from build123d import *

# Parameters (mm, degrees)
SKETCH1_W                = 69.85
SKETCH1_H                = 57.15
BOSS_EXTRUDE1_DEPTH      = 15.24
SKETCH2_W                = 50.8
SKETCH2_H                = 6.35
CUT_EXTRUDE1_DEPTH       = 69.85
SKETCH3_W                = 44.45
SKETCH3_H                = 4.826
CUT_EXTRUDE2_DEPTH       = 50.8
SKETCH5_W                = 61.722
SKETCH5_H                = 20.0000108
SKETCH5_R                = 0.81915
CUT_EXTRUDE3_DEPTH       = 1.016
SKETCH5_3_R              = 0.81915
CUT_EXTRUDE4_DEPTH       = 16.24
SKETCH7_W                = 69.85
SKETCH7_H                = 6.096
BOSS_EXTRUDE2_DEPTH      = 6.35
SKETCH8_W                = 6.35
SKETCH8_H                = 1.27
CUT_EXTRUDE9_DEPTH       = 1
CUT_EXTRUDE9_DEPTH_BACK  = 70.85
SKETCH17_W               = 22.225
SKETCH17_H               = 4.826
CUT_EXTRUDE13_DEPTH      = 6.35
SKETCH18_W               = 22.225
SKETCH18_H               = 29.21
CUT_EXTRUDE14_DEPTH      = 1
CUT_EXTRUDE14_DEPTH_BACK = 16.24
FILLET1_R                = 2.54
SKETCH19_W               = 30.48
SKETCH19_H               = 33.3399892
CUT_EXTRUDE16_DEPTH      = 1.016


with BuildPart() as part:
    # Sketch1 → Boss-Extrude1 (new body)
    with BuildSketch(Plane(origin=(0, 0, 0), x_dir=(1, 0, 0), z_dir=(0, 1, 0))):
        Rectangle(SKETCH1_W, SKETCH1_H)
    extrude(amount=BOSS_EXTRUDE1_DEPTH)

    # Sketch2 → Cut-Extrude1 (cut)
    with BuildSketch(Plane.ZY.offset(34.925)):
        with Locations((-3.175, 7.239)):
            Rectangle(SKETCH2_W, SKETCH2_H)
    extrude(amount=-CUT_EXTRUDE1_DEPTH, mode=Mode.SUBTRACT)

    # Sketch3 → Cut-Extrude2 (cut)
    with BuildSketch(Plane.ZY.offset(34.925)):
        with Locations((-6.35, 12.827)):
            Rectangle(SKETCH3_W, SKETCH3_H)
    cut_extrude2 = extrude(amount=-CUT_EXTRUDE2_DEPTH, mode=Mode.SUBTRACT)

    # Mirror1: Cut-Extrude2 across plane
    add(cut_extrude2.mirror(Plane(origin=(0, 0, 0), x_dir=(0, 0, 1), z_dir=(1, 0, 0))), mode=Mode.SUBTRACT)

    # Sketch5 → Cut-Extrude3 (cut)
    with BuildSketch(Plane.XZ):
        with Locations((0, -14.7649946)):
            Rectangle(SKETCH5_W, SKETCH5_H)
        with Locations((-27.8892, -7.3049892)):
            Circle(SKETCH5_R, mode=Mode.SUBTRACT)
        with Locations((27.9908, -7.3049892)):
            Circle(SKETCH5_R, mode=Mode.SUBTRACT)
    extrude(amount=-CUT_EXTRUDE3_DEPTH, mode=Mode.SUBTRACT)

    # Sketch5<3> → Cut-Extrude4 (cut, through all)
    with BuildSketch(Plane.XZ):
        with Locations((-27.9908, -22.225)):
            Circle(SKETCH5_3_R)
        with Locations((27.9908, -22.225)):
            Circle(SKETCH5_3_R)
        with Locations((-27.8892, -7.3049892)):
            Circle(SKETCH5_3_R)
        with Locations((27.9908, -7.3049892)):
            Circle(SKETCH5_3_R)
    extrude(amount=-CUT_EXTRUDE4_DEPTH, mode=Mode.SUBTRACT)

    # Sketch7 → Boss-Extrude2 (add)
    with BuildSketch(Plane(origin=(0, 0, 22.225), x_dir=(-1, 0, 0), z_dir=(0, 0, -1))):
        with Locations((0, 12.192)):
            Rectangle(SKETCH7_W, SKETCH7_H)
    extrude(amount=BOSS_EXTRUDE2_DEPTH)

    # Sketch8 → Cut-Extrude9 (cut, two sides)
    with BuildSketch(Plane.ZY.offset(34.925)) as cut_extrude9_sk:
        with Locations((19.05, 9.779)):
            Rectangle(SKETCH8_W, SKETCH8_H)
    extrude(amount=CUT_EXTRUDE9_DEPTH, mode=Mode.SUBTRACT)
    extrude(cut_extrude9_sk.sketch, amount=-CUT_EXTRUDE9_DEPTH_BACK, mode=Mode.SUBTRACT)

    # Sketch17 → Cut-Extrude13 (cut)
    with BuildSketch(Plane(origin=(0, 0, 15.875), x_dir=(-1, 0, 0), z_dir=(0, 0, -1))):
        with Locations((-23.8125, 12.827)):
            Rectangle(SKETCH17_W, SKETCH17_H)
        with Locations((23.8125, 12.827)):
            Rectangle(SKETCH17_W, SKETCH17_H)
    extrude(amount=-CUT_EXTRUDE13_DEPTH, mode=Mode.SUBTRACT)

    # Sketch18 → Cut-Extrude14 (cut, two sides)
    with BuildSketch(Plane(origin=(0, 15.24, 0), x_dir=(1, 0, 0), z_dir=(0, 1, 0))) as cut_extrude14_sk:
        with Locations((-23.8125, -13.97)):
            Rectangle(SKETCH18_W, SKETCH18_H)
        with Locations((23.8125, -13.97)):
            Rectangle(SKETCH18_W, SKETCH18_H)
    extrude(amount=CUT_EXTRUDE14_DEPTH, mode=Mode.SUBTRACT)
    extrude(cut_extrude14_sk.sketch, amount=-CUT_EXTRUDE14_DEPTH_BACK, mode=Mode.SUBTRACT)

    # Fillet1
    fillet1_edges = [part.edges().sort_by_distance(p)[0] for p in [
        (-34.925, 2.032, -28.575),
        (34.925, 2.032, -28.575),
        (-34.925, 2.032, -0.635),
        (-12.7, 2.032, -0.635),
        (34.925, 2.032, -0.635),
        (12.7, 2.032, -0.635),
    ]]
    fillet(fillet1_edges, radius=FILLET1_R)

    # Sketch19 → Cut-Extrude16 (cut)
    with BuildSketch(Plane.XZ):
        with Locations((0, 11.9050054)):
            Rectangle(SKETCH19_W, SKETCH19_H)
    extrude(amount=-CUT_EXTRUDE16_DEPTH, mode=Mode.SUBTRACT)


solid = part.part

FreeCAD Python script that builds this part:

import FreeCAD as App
import Part
import Sketcher
from FreeCAD import Vector
Q = App.Units.Quantity


def edges_at(feature, points):
    """Names of the edges that pass closest to the given points."""
    edges = feature.Shape.Edges
    near = lambda p: min(range(len(edges)), key=lambda i: edges[i].distToShape(Part.Vertex(*p))[0])
    return sorted({f"Edge{near(p) + 1}" for p in points})

doc = App.newDocument("Part")
body = doc.addObject("PartDesign::Body", "Body")

# Sketch on XZ plane
sketch1 = doc.addObject("Sketcher::SketchObject", "Sketch")
body.addObject(sketch1)
sketch1.AttachmentSupport = (doc.XZ_Plane, [""])
sketch1.MapMode = "FlatFace"
sketch1.addGeometry(Part.LineSegment(Vector(-35, -29, 0), Vector(-35, 29, 0)), False)
sketch1.addGeometry(Part.LineSegment(Vector(-35, 29, 0), Vector(35, 29, 0)), False)
sketch1.addGeometry(Part.LineSegment(Vector(35, 29, 0), Vector(35, -29, 0)), False)
sketch1.addGeometry(Part.LineSegment(Vector(35, -29, 0), Vector(-35, -29, 0)), False)
sketch1.addConstraint(Sketcher.Constraint("Coincident", 0, 2, 1, 1))
sketch1.addConstraint(Sketcher.Constraint("Coincident", 1, 2, 2, 1))
sketch1.addConstraint(Sketcher.Constraint("Coincident", 2, 2, 3, 1))
sketch1.addConstraint(Sketcher.Constraint("Coincident", 3, 2, 0, 1))
sketch1.addConstraint(Sketcher.Constraint("Vertical", 0))
sketch1.addConstraint(Sketcher.Constraint("Horizontal", 1))
sketch1.addConstraint(Sketcher.Constraint("Vertical", 2))
sketch1.addConstraint(Sketcher.Constraint("Horizontal", 3))
sketch1.addConstraint(Sketcher.Constraint("Symmetric", 0, 2, 2, 2, -1, 1))
sketch1.addConstraint(Sketcher.Constraint("DistanceX", 1, 1, 1, 2, Q("2.75 in")))
sketch1.addConstraint(Sketcher.Constraint("DistanceY", 0, 1, 0, 2, Q("2.25 in")))
pad1 = doc.addObject("PartDesign::Pad", "Pad")
body.addObject(pad1)
pad1.Profile = sketch1
pad1.Length = Q("0.6 in")
pad1.Reversed = True

# Sketch on YZ plane
sketch2 = doc.addObject("Sketcher::SketchObject", "Sketch001")
body.addObject(sketch2)
sketch2.AttachmentSupport = (doc.YZ_Plane, [""])
sketch2.MapMode = "FlatFace"
sketch2.AttachmentOffset = App.Placement(Vector(0, 0, -1.375 * 25.4), App.Rotation())
sketch2.addGeometry(Part.LineSegment(Vector(10, -29, 0), Vector(4, -29, 0)), False)
sketch2.addGeometry(Part.LineSegment(Vector(4, -29, 0), Vector(4, 22, 0)), False)
sketch2.addGeometry(Part.LineSegment(Vector(4, 22, 0), Vector(10, 22, 0)), False)
sketch2.addGeometry(Part.LineSegment(Vector(10, 22, 0), Vector(10, -29, 0)), False)
sketch2.addConstraint(Sketcher.Constraint("Coincident", 0, 2, 1, 1))
sketch2.addConstraint(Sketcher.Constraint("Coincident", 1, 2, 2, 1))
sketch2.addConstraint(Sketcher.Constraint("Coincident", 2, 2, 3, 1))
sketch2.addConstraint(Sketcher.Constraint("Coincident", 3, 2, 0, 1))
sketch2.addConstraint(Sketcher.Constraint("Horizontal", 0))
sketch2.addConstraint(Sketcher.Constraint("Vertical", 1))
sketch2.addConstraint(Sketcher.Constraint("Horizontal", 2))
sketch2.addConstraint(Sketcher.Constraint("Vertical", 3))
sketch2.addConstraint(Sketcher.Constraint("DistanceY", 1, 1, 1, 2, Q("2 in")))
sketch2.addConstraint(Sketcher.Constraint("DistanceX", 0, 2, 0, 1, Q("0.25 in")))
sketch2.addConstraint(Sketcher.Constraint("DistanceX", -1, 1, 0, 2, Q("0.16 in")))
sketch2.addConstraint(Sketcher.Constraint("DistanceY", 0, 2, -1, 1, Q("1.125 in")))
pocket1 = doc.addObject("PartDesign::Pocket", "Pocket")
body.addObject(pocket1)
pocket1.Profile = sketch2
pocket1.Length = Q("2.75 in")
pocket1.Reversed = True

# Sketch on YZ plane
sketch3 = doc.addObject("Sketcher::SketchObject", "Sketch002")
body.addObject(sketch3)
sketch3.AttachmentSupport = (doc.YZ_Plane, [""])
sketch3.MapMode = "FlatFace"
sketch3.AttachmentOffset = App.Placement(Vector(0, 0, -1.375 * 25.4), App.Rotation())
sketch3.addGeometry(Part.LineSegment(Vector(15.2, -28.6, 0), Vector(10.4, -28.6, 0)), False)
sketch3.addGeometry(Part.LineSegment(Vector(10.4, -28.6, 0), Vector(10.4, 15.9, 0)), False)
sketch3.addGeometry(Part.LineSegment(Vector(10.4, 15.9, 0), Vector(15.2, 15.9, 0)), False)
sketch3.addGeometry(Part.LineSegment(Vector(15.2, 15.9, 0), Vector(15.2, -28.6, 0)), False)
sketch3.addConstraint(Sketcher.Constraint("Coincident", 0, 2, 1, 1))
sketch3.addConstraint(Sketcher.Constraint("Coincident", 1, 2, 2, 1))
sketch3.addConstraint(Sketcher.Constraint("Coincident", 2, 2, 3, 1))
sketch3.addConstraint(Sketcher.Constraint("Coincident", 3, 2, 0, 1))
sketch3.addConstraint(Sketcher.Constraint("Horizontal", 0))
sketch3.addConstraint(Sketcher.Constraint("Vertical", 1))
sketch3.addConstraint(Sketcher.Constraint("Horizontal", 2))
sketch3.addConstraint(Sketcher.Constraint("Vertical", 3))
sketch3.addConstraint(Sketcher.Constraint("DistanceX", 0, 2, 0, 1, Q("0.19 in")))
sketch3.addConstraint(Sketcher.Constraint("DistanceY", 1, 1, 1, 2, Q("1.75 in")))
sketch3.addConstraint(Sketcher.Constraint("DistanceX", -1, 1, 2, 2, Q("0.6 in")))
sketch3.addConstraint(Sketcher.Constraint("DistanceY", 0, 2, -1, 1, Q("1.125 in")))
pocket2 = doc.addObject("PartDesign::Pocket", "Pocket001")
body.addObject(pocket2)
pocket2.Profile = sketch3
pocket2.Length = Q("2 in")
pocket2.Reversed = True
doc.recompute()

mirrored = doc.addObject("PartDesign::Mirrored", "Mirrored")
body.addObject(mirrored)
mirrored.Originals = [pocket2]
mirrored.MirrorPlane = (doc.YZ_Plane, [""])
body.Tip = mirrored

# Sketch on XZ plane
sketch4 = doc.addObject("Sketcher::SketchObject", "Sketch003")
body.addObject(sketch4)
sketch4.AttachmentSupport = (doc.XZ_Plane, [""])
sketch4.MapMode = "FlatFace"
sketch4.addGeometry(Part.LineSegment(Vector(-30.9, -4.8, 0), Vector(-30.9, -24.8, 0)), False)
sketch4.addGeometry(Part.LineSegment(Vector(-30.9, -24.8, 0), Vector(30.9, -24.8, 0)), False)
sketch4.addGeometry(Part.LineSegment(Vector(30.9, -24.8, 0), Vector(30.9, -4.8, 0)), False)
sketch4.addGeometry(Part.LineSegment(Vector(30.9, -4.8, 0), Vector(-30.9, -4.8, 0)), False)
sketch4.addGeometry(Part.Circle(Vector(-27.9, -7.3, 0), Vector(0, 0, 1), 0.8), False)
sketch4.addGeometry(Part.Circle(Vector(28, -7.3, 0), Vector(0, 0, 1), 0.8), False)
sketch4.addConstraint(Sketcher.Constraint("Coincident", 0, 2, 1, 1))
sketch4.addConstraint(Sketcher.Constraint("Coincident", 1, 2, 2, 1))
sketch4.addConstraint(Sketcher.Constraint("Coincident", 2, 2, 3, 1))
sketch4.addConstraint(Sketcher.Constraint("Coincident", 3, 2, 0, 1))
sketch4.addConstraint(Sketcher.Constraint("Vertical", 0))
sketch4.addConstraint(Sketcher.Constraint("Horizontal", 1))
sketch4.addConstraint(Sketcher.Constraint("Vertical", 2))
sketch4.addConstraint(Sketcher.Constraint("Horizontal", 3))
sketch4.addConstraint(Sketcher.Constraint("Equal", 4, 5))
sketch4.addConstraint(Sketcher.Constraint("Horizontal", 4, 3, 5, 3))
sketch4.addConstraint(Sketcher.Constraint("Diameter", 4, Q("0.0645 in")))
sketch4.addConstraint(Sketcher.Constraint("DistanceX", 1, 1, 1, 2, Q("2.43 in")))
sketch4.addConstraint(Sketcher.Constraint("DistanceX", 4, 3, 5, 3, Q("2.2 in")))
sketch4.addConstraint(Sketcher.Constraint("DistanceY", 5, 3, 2, 2, Q("0.1 in")))
sketch4.addConstraint(Sketcher.Constraint("DistanceX", 4, 3, -1, 1, Q("1.098 in")))
sketch4.addConstraint(Sketcher.Constraint("DistanceX", 0, 2, -1, 1, Q("1.215 in")))
sketch4.addConstraint(Sketcher.Constraint("DistanceY", 0, 2, -1, 1, Q("0.975 in")))
sketch4.addConstraint(Sketcher.Constraint("DistanceY", 0, 2, 0, 1, 20.000011))
pocket3 = doc.addObject("PartDesign::Pocket", "Pocket002")
body.addObject(pocket3)
pocket3.Profile = sketch4
pocket3.Length = Q("0.04 in")

# Sketch on XZ plane
sketch5 = doc.addObject("Sketcher::SketchObject", "Sketch004")
body.addObject(sketch5)
sketch5.AttachmentSupport = (doc.XZ_Plane, [""])
sketch5.MapMode = "FlatFace"
sketch5.addGeometry(Part.Circle(Vector(-28, -22.2, 0), Vector(0, 0, 1), 0.8), False)
sketch5.addGeometry(Part.Circle(Vector(28, -22.2, 0), Vector(0, 0, 1), 0.8), False)
sketch5.addGeometry(Part.Circle(Vector(-27.9, -7.3, 0), Vector(0, 0, 1), 0.8), False)
sketch5.addGeometry(Part.Circle(Vector(28, -7.3, 0), Vector(0, 0, 1), 0.8), False)
sketch5.addConstraint(Sketcher.Constraint("Equal", 0, 1))
sketch5.addConstraint(Sketcher.Constraint("Equal", 1, 2))
sketch5.addConstraint(Sketcher.Constraint("Equal", 2, 3))
sketch5.addConstraint(Sketcher.Constraint("Symmetric", 0, 3, 1, 3, -2))
sketch5.addConstraint(Sketcher.Constraint("Horizontal", 2, 3, 3, 3))
sketch5.addConstraint(Sketcher.Constraint("Vertical", 1, 3, 3, 3))
sketch5.addConstraint(Sketcher.Constraint("Diameter", 0, Q("0.0645 in")))
sketch5.addConstraint(Sketcher.Constraint("DistanceX", 2, 3, 1, 3, Q("2.2 in")))
sketch5.addConstraint(Sketcher.Constraint("DistanceX", 0, 3, -1, 1, Q("1.102 in")))
sketch5.addConstraint(Sketcher.Constraint("DistanceY", 0, 3, -1, 1, Q("0.875 in")))
sketch5.addConstraint(Sketcher.Constraint("DistanceY", 2, 3, -1, 1, 7.304989))
pocket4 = doc.addObject("PartDesign::Pocket", "Pocket003")
body.addObject(pocket4)
pocket4.Profile = sketch5
pocket4.Type = "ThroughAll"

# Sketch on XY plane
sketch6 = doc.addObject("Sketcher::SketchObject", "Sketch005")
body.addObject(sketch6)
sketch6.AttachmentSupport = (doc.XY_Plane, [""])
sketch6.MapMode = "FlatFace"
sketch6.AttachmentOffset = App.Placement(Vector(0, 0, 0.875 * 25.4), App.Rotation())
sketch6.addGeometry(Part.LineSegment(Vector(35, 15, 0), Vector(35, 9, 0)), False)
sketch6.addGeometry(Part.LineSegment(Vector(35, 9, 0), Vector(-35, 9, 0)), False)
sketch6.addGeometry(Part.LineSegment(Vector(-35, 9, 0), Vector(-35, 15, 0)), False)
sketch6.addGeometry(Part.LineSegment(Vector(-35, 15, 0), Vector(35, 15, 0)), False)
sketch6.addConstraint(Sketcher.Constraint("Coincident", 0, 2, 1, 1))
sketch6.addConstraint(Sketcher.Constraint("Coincident", 1, 2, 2, 1))
sketch6.addConstraint(Sketcher.Constraint("Coincident", 2, 2, 3, 1))
sketch6.addConstraint(Sketcher.Constraint("Coincident", 3, 2, 0, 1))
sketch6.addConstraint(Sketcher.Constraint("Vertical", 0))
sketch6.addConstraint(Sketcher.Constraint("Horizontal", 1))
sketch6.addConstraint(Sketcher.Constraint("Vertical", 2))
sketch6.addConstraint(Sketcher.Constraint("Horizontal", 3))
sketch6.addConstraint(Sketcher.Constraint("DistanceX", 1, 2, 1, 1, Q("2.75 in")))
sketch6.addConstraint(Sketcher.Constraint("DistanceY", 0, 2, 0, 1, Q("0.24 in")))
sketch6.addConstraint(Sketcher.Constraint("DistanceY", -1, 1, 2, 2, Q("0.6 in")))
sketch6.addConstraint(Sketcher.Constraint("DistanceX", -1, 1, 0, 2, Q("1.375 in")))
pad2 = doc.addObject("PartDesign::Pad", "Pad001")
body.addObject(pad2)
pad2.Profile = sketch6
pad2.Length = Q("0.25 in")
pad2.Reversed = True

# Sketch on YZ plane
sketch7 = doc.addObject("Sketcher::SketchObject", "Sketch006")
body.addObject(sketch7)
sketch7.AttachmentSupport = (doc.YZ_Plane, [""])
sketch7.MapMode = "FlatFace"
sketch7.AttachmentOffset = App.Placement(Vector(0, 0, -1.375 * 25.4), App.Rotation())
sketch7.addGeometry(Part.LineSegment(Vector(10.4, 15.9, 0), Vector(9.1, 15.9, 0)), False)
sketch7.addGeometry(Part.LineSegment(Vector(9.1, 15.9, 0), Vector(9.1, 22.2, 0)), False)
sketch7.addGeometry(Part.LineSegment(Vector(9.1, 22.2, 0), Vector(10.4, 22.2, 0)), False)
sketch7.addGeometry(Part.LineSegment(Vector(10.4, 22.2, 0), Vector(10.4, 15.9, 0)), False)
sketch7.addConstraint(Sketcher.Constraint("Coincident", 0, 2, 1, 1))
sketch7.addConstraint(Sketcher.Constraint("Coincident", 1, 2, 2, 1))
sketch7.addConstraint(Sketcher.Constraint("Coincident", 2, 2, 3, 1))
sketch7.addConstraint(Sketcher.Constraint("Coincident", 3, 2, 0, 1))
sketch7.addConstraint(Sketcher.Constraint("Horizontal", 0))
sketch7.addConstraint(Sketcher.Constraint("Vertical", 1))
sketch7.addConstraint(Sketcher.Constraint("Horizontal", 2))
sketch7.addConstraint(Sketcher.Constraint("Vertical", 3))
sketch7.addConstraint(Sketcher.Constraint("DistanceX", 0, 2, 0, 1, Q("0.05 in")))
sketch7.addConstraint(Sketcher.Constraint("DistanceY", 1, 1, 1, 2, Q("0.25 in")))
sketch7.addConstraint(Sketcher.Constraint("DistanceX", -1, 1, 0, 2, Q("0.36 in")))
sketch7.addConstraint(Sketcher.Constraint("DistanceY", -1, 1, 0, 2, Q("0.625 in")))
pocket5 = doc.addObject("PartDesign::Pocket", "Pocket004")
body.addObject(pocket5)
pocket5.Profile = sketch7
pocket5.Type = "ThroughAll"
pocket5.Midplane = True

# Sketch on XY plane
sketch8 = doc.addObject("Sketcher::SketchObject", "Sketch007")
body.addObject(sketch8)
sketch8.AttachmentSupport = (doc.XY_Plane, [""])
sketch8.MapMode = "FlatFace"
sketch8.AttachmentOffset = App.Placement(Vector(0, 0, 0.625 * 25.4), App.Rotation())
sketch8.addGeometry(Part.LineSegment(Vector(34.9, 15.2, 0), Vector(34.9, 10.4, 0)), False)
sketch8.addGeometry(Part.LineSegment(Vector(34.9, 10.4, 0), Vector(12.7, 10.4, 0)), False)
sketch8.addGeometry(Part.LineSegment(Vector(12.7, 10.4, 0), Vector(12.7, 15.2, 0)), False)
sketch8.addGeometry(Part.LineSegment(Vector(12.7, 15.2, 0), Vector(34.9, 15.2, 0)), False)
sketch8.addGeometry(Part.LineSegment(Vector(-12.7, 15.2, 0), Vector(-12.7, 10.4, 0)), False)
sketch8.addGeometry(Part.LineSegment(Vector(-12.7, 10.4, 0), Vector(-34.9, 10.4, 0)), False)
sketch8.addGeometry(Part.LineSegment(Vector(-34.9, 10.4, 0), Vector(-34.9, 15.2, 0)), False)
sketch8.addGeometry(Part.LineSegment(Vector(-34.9, 15.2, 0), Vector(-12.7, 15.2, 0)), False)
sketch8.addConstraint(Sketcher.Constraint("Coincident", 0, 2, 1, 1))
sketch8.addConstraint(Sketcher.Constraint("Coincident", 1, 2, 2, 1))
sketch8.addConstraint(Sketcher.Constraint("Coincident", 2, 2, 3, 1))
sketch8.addConstraint(Sketcher.Constraint("Coincident", 3, 2, 0, 1))
sketch8.addConstraint(Sketcher.Constraint("Coincident", 4, 2, 5, 1))
sketch8.addConstraint(Sketcher.Constraint("Coincident", 5, 2, 6, 1))
sketch8.addConstraint(Sketcher.Constraint("Coincident", 6, 2, 7, 1))
sketch8.addConstraint(Sketcher.Constraint("Coincident", 7, 2, 4, 1))
sketch8.addConstraint(Sketcher.Constraint("Vertical", 0))
sketch8.addConstraint(Sketcher.Constraint("Horizontal", 1))
sketch8.addConstraint(Sketcher.Constraint("Vertical", 2))
sketch8.addConstraint(Sketcher.Constraint("Horizontal", 3))
sketch8.addConstraint(Sketcher.Constraint("Vertical", 4))
sketch8.addConstraint(Sketcher.Constraint("Horizontal", 5))
sketch8.addConstraint(Sketcher.Constraint("Vertical", 6))
sketch8.addConstraint(Sketcher.Constraint("Horizontal", 7))
sketch8.addConstraint(Sketcher.Constraint("Symmetric", 1, 2, 4, 2, -2))
sketch8.addConstraint(Sketcher.Constraint("Symmetric", 3, 2, 6, 2, -2))
sketch8.addConstraint(Sketcher.Constraint("DistanceX", 4, 2, 1, 2, Q("1 in")))
sketch8.addConstraint(Sketcher.Constraint("DistanceY", 0, 2, 0, 1, Q("0.19 in")))
sketch8.addConstraint(Sketcher.Constraint("DistanceY", -1, 1, 2, 2, Q("0.6 in")))
sketch8.addConstraint(Sketcher.Constraint("DistanceX", 1, 2, 1, 1, Q("0.875 in")))
pocket6 = doc.addObject("PartDesign::Pocket", "Pocket005")
body.addObject(pocket6)
pocket6.Profile = sketch8
pocket6.Length = Q("0.25 in")
pocket6.Reversed = True

# Sketch on XZ plane
sketch9 = doc.addObject("Sketcher::SketchObject", "Sketch008")
body.addObject(sketch9)
sketch9.AttachmentSupport = (doc.XZ_Plane, [""])
sketch9.MapMode = "FlatFace"
sketch9.AttachmentOffset = App.Placement(Vector(0, 0, -0.6 * 25.4), App.Rotation())
sketch9.addGeometry(Part.LineSegment(Vector(-35, -1, 0), Vector(-35, 29, 0)), False)
sketch9.addGeometry(Part.LineSegment(Vector(-35, 29, 0), Vector(-13, 29, 0)), False)
sketch9.addGeometry(Part.LineSegment(Vector(-13, 29, 0), Vector(-13, -1, 0)), False)
sketch9.addGeometry(Part.LineSegment(Vector(-13, -1, 0), Vector(-35, -1, 0)), False)
sketch9.addGeometry(Part.LineSegment(Vector(13, -1, 0), Vector(13, 29, 0)), False)
sketch9.addGeometry(Part.LineSegment(Vector(13, 29, 0), Vector(35, 29, 0)), False)
sketch9.addGeometry(Part.LineSegment(Vector(35, 29, 0), Vector(35, -1, 0)), False)
sketch9.addGeometry(Part.LineSegment(Vector(35, -1, 0), Vector(13, -1, 0)), False)
sketch9.addConstraint(Sketcher.Constraint("Coincident", 0, 2, 1, 1))
sketch9.addConstraint(Sketcher.Constraint("Coincident", 1, 2, 2, 1))
sketch9.addConstraint(Sketcher.Constraint("Coincident", 2, 2, 3, 1))
sketch9.addConstraint(Sketcher.Constraint("Coincident", 3, 2, 0, 1))
sketch9.addConstraint(Sketcher.Constraint("Coincident", 4, 2, 5, 1))
sketch9.addConstraint(Sketcher.Constraint("Coincident", 5, 2, 6, 1))
sketch9.addConstraint(Sketcher.Constraint("Coincident", 6, 2, 7, 1))
sketch9.addConstraint(Sketcher.Constraint("Coincident", 7, 2, 4, 1))
sketch9.addConstraint(Sketcher.Constraint("Vertical", 0))
sketch9.addConstraint(Sketcher.Constraint("Horizontal", 1))
sketch9.addConstraint(Sketcher.Constraint("Vertical", 2))
sketch9.addConstraint(Sketcher.Constraint("Horizontal", 3))
sketch9.addConstraint(Sketcher.Constraint("Vertical", 4))
sketch9.addConstraint(Sketcher.Constraint("Horizontal", 5))
sketch9.addConstraint(Sketcher.Constraint("Vertical", 6))
sketch9.addConstraint(Sketcher.Constraint("Horizontal", 7))
sketch9.addConstraint(Sketcher.Constraint("Symmetric", 1, 2, 4, 2, -2))
sketch9.addConstraint(Sketcher.Constraint("Symmetric", 3, 2, 6, 2, -2))
sketch9.addConstraint(Sketcher.Constraint("DistanceX", 1, 2, 4, 2, Q("1 in")))
sketch9.addConstraint(Sketcher.Constraint("DistanceY", 0, 1, 0, 2, Q("1.15 in")))
sketch9.addConstraint(Sketcher.Constraint("DistanceX", 1, 1, 1, 2, Q("0.875 in")))
sketch9.addConstraint(Sketcher.Constraint("DistanceY", -1, 1, 0, 2, Q("1.125 in")))
pocket7 = doc.addObject("PartDesign::Pocket", "Pocket006")
body.addObject(pocket7)
pocket7.Profile = sketch9
pocket7.Type = "ThroughAll"
pocket7.Midplane = True
doc.recompute()

fillet = doc.addObject("PartDesign::Fillet", "Fillet")
body.addObject(fillet)
fillet.Base = (pocket7, edges_at(pocket7, [
    (-34.925, 2.032, -28.575),
    (34.925, 2.032, -28.575),
    (-34.925, 2.032, -0.635),
    (-12.7, 2.032, -0.635),
    (34.925, 2.032, -0.635),
    (12.7, 2.032, -0.635),
]))
fillet.Radius = Q("0.1 in")

# Sketch on XZ plane
sketch10 = doc.addObject("Sketcher::SketchObject", "Sketch009")
body.addObject(sketch10)
sketch10.AttachmentSupport = (doc.XZ_Plane, [""])
sketch10.MapMode = "FlatFace"
sketch10.addGeometry(Part.LineSegment(Vector(-15, 29, 0), Vector(-15, -5, 0)), False)
sketch10.addGeometry(Part.LineSegment(Vector(-15, -5, 0), Vector(15, -5, 0)), False)
sketch10.addGeometry(Part.LineSegment(Vector(15, -5, 0), Vector(15, 29, 0)), False)
sketch10.addGeometry(Part.LineSegment(Vector(15, 29, 0), Vector(-15, 29, 0)), False)
sketch10.addConstraint(Sketcher.Constraint("Coincident", 0, 2, 1, 1))
sketch10.addConstraint(Sketcher.Constraint("Coincident", 1, 2, 2, 1))
sketch10.addConstraint(Sketcher.Constraint("Coincident", 2, 2, 3, 1))
sketch10.addConstraint(Sketcher.Constraint("Coincident", 3, 2, 0, 1))
sketch10.addConstraint(Sketcher.Constraint("Vertical", 0))
sketch10.addConstraint(Sketcher.Constraint("Horizontal", 1))
sketch10.addConstraint(Sketcher.Constraint("Vertical", 2))
sketch10.addConstraint(Sketcher.Constraint("Horizontal", 3))
sketch10.addConstraint(Sketcher.Constraint("DistanceX", 1, 1, 1, 2, Q("1.2 in")))
sketch10.addConstraint(Sketcher.Constraint("DistanceX", 0, 2, -1, 1, Q("0.6 in")))
sketch10.addConstraint(Sketcher.Constraint("DistanceY", -1, 1, 2, 2, Q("1.125 in")))
sketch10.addConstraint(Sketcher.Constraint("DistanceY", 0, 2, 0, 1, 33.339989))
pocket8 = doc.addObject("PartDesign::Pocket", "Pocket007")
body.addObject(pocket8)
pocket8.Profile = sketch10
pocket8.Length = Q("0.04 in")

doc.recompute()
